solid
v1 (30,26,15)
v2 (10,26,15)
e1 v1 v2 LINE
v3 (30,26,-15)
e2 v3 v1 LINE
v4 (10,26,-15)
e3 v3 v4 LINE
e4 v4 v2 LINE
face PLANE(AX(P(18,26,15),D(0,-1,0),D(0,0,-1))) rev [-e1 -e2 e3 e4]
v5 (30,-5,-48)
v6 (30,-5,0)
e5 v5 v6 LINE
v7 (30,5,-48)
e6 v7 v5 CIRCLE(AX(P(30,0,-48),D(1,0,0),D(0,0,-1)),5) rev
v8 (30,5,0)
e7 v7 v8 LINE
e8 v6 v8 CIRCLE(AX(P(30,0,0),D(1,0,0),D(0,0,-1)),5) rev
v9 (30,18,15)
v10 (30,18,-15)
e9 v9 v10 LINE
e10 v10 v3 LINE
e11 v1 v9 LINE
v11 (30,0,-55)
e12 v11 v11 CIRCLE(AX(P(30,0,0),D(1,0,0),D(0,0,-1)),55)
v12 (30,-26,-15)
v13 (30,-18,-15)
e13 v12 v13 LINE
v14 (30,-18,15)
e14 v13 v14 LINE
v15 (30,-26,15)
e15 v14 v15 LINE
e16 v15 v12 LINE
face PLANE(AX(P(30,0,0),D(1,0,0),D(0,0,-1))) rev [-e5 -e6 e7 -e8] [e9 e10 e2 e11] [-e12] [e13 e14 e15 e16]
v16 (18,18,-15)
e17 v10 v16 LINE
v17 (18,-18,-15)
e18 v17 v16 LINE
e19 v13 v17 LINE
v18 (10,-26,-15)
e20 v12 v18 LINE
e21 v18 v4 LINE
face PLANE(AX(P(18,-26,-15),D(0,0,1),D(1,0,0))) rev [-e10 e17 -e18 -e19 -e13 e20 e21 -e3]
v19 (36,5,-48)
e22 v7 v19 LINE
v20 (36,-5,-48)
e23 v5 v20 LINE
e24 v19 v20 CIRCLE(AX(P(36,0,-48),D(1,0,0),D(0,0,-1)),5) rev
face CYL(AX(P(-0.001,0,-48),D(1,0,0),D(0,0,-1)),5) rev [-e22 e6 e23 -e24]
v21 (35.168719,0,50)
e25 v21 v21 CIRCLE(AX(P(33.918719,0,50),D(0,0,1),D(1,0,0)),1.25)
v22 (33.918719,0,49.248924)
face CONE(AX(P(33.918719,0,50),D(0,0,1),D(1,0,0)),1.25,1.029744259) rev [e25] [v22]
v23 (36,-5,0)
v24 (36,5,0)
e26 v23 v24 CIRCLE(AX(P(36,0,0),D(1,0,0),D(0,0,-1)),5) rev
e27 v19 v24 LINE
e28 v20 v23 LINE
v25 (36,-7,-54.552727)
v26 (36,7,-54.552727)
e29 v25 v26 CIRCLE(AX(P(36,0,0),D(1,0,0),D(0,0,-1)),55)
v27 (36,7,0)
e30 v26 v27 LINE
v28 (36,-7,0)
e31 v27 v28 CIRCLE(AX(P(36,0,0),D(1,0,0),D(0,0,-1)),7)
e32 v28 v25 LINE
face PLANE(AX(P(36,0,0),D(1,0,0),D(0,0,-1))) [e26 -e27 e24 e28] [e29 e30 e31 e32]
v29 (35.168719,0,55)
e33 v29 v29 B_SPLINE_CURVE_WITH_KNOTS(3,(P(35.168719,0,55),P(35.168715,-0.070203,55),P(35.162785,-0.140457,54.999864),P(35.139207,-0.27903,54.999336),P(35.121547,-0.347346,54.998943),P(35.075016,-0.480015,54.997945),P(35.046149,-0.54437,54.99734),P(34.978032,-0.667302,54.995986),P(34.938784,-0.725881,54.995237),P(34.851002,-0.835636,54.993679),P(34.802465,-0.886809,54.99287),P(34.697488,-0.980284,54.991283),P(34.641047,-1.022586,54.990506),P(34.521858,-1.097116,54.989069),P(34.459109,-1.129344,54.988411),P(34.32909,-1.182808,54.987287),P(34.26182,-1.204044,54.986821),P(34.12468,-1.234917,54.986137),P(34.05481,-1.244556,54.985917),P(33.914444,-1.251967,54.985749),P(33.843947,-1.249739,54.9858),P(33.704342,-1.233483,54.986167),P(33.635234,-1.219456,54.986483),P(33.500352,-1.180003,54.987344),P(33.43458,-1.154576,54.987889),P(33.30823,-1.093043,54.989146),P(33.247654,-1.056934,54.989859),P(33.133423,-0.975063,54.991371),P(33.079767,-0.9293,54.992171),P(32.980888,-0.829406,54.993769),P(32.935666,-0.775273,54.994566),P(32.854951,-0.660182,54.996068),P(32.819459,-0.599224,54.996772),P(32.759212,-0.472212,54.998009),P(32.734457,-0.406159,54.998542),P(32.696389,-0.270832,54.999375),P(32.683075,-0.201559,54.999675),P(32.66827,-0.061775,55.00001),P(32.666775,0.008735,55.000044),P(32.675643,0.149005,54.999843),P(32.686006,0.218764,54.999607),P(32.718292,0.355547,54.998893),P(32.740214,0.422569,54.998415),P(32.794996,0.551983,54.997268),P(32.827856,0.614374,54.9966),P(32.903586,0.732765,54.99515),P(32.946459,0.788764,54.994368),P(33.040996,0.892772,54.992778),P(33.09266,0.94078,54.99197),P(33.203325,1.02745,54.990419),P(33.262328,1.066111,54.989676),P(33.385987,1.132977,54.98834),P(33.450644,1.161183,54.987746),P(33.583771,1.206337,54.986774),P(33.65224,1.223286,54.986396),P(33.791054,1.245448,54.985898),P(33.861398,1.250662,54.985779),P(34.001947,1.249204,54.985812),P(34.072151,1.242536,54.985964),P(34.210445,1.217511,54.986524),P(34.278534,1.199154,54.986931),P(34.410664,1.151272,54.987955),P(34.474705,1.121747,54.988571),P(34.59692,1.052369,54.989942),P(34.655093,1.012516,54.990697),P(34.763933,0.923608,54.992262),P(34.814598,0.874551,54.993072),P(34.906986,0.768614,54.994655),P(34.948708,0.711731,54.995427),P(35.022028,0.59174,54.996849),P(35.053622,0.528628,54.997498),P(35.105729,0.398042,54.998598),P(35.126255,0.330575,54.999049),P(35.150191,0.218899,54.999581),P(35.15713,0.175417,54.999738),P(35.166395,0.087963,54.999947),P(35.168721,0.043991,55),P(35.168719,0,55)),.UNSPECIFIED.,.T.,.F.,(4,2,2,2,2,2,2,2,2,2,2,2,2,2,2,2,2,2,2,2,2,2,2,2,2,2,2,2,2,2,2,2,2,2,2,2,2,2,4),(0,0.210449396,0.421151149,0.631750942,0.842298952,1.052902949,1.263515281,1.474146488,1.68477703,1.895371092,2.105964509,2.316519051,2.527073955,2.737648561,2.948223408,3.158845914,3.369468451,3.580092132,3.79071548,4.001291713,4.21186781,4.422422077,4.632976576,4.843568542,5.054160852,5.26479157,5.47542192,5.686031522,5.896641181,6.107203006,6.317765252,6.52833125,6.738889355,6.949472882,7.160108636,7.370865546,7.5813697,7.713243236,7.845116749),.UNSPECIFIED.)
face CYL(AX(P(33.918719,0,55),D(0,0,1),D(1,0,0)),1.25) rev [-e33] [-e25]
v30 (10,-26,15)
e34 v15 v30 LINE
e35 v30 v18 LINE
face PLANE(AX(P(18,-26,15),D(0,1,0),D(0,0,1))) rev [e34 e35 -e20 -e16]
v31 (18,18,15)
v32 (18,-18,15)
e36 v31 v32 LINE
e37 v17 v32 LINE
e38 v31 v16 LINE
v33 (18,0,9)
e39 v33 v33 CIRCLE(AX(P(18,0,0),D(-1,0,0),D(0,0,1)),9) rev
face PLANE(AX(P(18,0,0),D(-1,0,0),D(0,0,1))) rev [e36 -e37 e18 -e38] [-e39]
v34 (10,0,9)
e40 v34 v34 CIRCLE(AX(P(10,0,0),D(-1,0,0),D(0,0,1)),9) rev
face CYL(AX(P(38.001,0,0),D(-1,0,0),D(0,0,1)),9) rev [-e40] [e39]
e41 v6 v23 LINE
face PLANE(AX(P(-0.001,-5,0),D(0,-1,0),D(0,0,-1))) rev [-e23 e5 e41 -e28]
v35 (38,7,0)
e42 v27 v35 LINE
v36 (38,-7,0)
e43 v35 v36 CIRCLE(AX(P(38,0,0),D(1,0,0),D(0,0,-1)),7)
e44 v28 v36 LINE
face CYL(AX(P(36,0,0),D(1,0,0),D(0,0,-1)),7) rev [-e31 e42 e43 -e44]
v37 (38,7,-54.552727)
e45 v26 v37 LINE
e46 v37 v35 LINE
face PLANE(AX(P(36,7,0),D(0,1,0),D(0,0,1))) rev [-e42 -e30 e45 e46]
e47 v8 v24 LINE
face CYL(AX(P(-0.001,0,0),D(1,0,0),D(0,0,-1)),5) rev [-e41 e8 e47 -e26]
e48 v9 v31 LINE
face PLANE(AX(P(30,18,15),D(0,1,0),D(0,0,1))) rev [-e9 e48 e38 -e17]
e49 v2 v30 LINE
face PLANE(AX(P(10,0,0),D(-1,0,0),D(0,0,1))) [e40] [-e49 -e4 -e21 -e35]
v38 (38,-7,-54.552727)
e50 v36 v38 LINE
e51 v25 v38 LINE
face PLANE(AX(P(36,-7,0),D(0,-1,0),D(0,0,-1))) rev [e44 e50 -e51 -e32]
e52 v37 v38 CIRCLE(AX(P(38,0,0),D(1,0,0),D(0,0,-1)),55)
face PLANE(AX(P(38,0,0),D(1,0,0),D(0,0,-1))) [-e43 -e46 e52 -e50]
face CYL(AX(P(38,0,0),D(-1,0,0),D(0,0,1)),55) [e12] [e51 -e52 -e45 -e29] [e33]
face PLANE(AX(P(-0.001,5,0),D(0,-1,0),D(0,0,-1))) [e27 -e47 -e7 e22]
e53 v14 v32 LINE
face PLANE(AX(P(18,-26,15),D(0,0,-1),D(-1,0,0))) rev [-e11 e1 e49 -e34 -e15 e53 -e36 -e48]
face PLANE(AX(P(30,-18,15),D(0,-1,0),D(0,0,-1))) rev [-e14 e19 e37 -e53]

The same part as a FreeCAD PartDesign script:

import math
import FreeCAD as App
import Part
import Sketcher
from FreeCAD import Vector
Q = App.Units.Quantity


def add_polygon(sketch, points):
    """Adds a closed chain of lines whose ends are joined by coincident constraints."""
    first, n = sketch.GeometryCount, len(points)
    for a, b in zip(points, points[1:] + points[:1]):
        sketch.addGeometry(Part.LineSegment(App.Vector(*a, 0), App.Vector(*b, 0)), False)
    for i in range(n):
        sketch.addConstraint(Sketcher.Constraint("Coincident", first + i, 2, first + (i + 1) % n, 1))

doc = App.newDocument("Part")
body = doc.addObject("PartDesign::Body", "Body")

sketch1 = body.newObject("Sketcher::SketchObject", "Sketch")
sketch1.AttachmentSupport = (doc.getObject("YZ_Plane"), [""])
sketch1.MapMode = "FlatFace"
sketch1.addGeometry(Part.Circle(Vector(0, 0, 0), Vector(0, 0, 1), 8), False)
sketch1.addConstraint([
    Sketcher.Constraint("Coincident", 0, 3, -1, 1),
    Sketcher.Constraint("Diameter", 0, Q("15 mm")),
])
pad1 = body.newObject("PartDesign::Pad", "Pad")
pad1.Profile = sketch1
pad1.Length = 10

sketch2 = body.newObject("Sketcher::SketchObject", "Sketch001")
sketch2.AttachmentSupport = (doc.getObject("YZ_Plane"), [""])
sketch2.MapMode = "FlatFace"
sketch2.AttachmentOffset = App.Placement(Vector(0, 0, 10), App.Rotation())
add_polygon(sketch2, [(26, 15), (-26, 15), (-26, -15), (26, -15)])
sketch2.addConstraint([
    Sketcher.Constraint("Horizontal", 0),
    Sketcher.Constraint("Vertical", 1),
    Sketcher.Constraint("Horizontal", 2),
    Sketcher.Constraint("Vertical", 3),
    Sketcher.Constraint("Symmetric", 0, 2, 2, 2, -1, 1),
    Sketcher.Constraint("DistanceX", 0, 2, 0, 1, Q("52 mm")),
    Sketcher.Constraint("DistanceY", 1, 2, 1, 1, Q("30 mm")),
])
pad2 = body.newObject("PartDesign::Pad", "Pad001")
pad2.Profile = sketch2
pad2.Length = 8

sketch3 = body.newObject("Sketcher::SketchObject", "Sketch002")
sketch3.AttachmentSupport = (doc.getObject("YZ_Plane"), [""])
sketch3.MapMode = "FlatFace"
sketch3.AttachmentOffset = App.Placement(Vector(0, 0, 18), App.Rotation())
add_polygon(sketch3, [(26, 15), (18, 15), (18, -15), (26, -15)])
add_polygon(sketch3, [(-18, 15), (-26, 15), (-26, -15), (-18, -15)])
sketch3.addConstraint([
    Sketcher.Constraint("Horizontal", 0),
    Sketcher.Constraint("Vertical", 1),
    Sketcher.Constraint("Horizontal", 2),
    Sketcher.Constraint("Vertical", 3),
    Sketcher.Constraint("Horizontal", 4),
    Sketcher.Constraint("Vertical", 5),
    Sketcher.Constraint("Horizontal", 6),
    Sketcher.Constraint("Vertical", 7),
    Sketcher.Constraint("Symmetric", 2, 2, 4, 2, -1, 1),
    Sketcher.Constraint("Symmetric", 0, 2, 6, 2, -1, 1),
    Sketcher.Constraint("Horizontal", 3, 2, 4, 2),
    Sketcher.Constraint("DistanceX", 0, 2, 0, 1, Q("8 mm")),
    Sketcher.Constraint("DistanceY", 1, 2, 1, 1, Q("30 mm")),
    Sketcher.Constraint("DistanceX", -1, 1, 0, 2, Q("18 mm")),
])
pad3 = body.newObject("PartDesign::Pad", "Pad002")
pad3.Profile = sketch3
pad3.Length = 12

sketch4 = body.newObject("Sketcher::SketchObject", "Sketch003")
sketch4.AttachmentSupport = (doc.getObject("YZ_Plane"), [""])
sketch4.MapMode = "FlatFace"
sketch4.AttachmentOffset = App.Placement(Vector(0, 0, 30), App.Rotation())
sketch4.addGeometry(Part.Circle(Vector(0, 0, 0), Vector(0, 0, 1), 55), False)
sketch4.addConstraint([
    Sketcher.Constraint("Coincident", 0, 3, -1, 1),
    Sketcher.Constraint("Diameter", 0, Q("110 mm")),
])
pad4 = body.newObject("PartDesign::Pad", "Pad003")
pad4.Profile = sketch4
pad4.Length = 8

sketch5 = body.newObject("Sketcher::SketchObject", "Sketch004")
sketch5.AttachmentSupport = (doc.getObject("YZ_Plane"), [""])
sketch5.MapMode = "FlatFace"
sketch5.AttachmentOffset = App.Placement(Vector(0, 0, 38), App.Rotation())
sketch5.addGeometry([
    Part.LineSegment(Vector(5, -48, 0), Vector(5, 0, 0)),
    Part.ArcOfCircle(Part.Circle(Vector(0, 0, 0), Vector(0, 0, 1), 5), math.radians(0), math.radians(180)),
    Part.LineSegment(Vector(-5, 0, 0), Vector(-5, -48, 0)),
    Part.ArcOfCircle(Part.Circle(Vector(0, -48, 0), Vector(0, 0, 1), 5), math.radians(180), math.radians(360)),
], False)
sketch5.addConstraint([
    Sketcher.Constraint("Tangent", 0, 2, 1, 1),
    Sketcher.Constraint("Tangent", 1, 2, 2, 1),
    Sketcher.Constraint("Tangent", 2, 2, 3, 1),
    Sketcher.Constraint("Tangent", 3, 2, 0, 1),
    Sketcher.Constraint("Vertical", 0),
    Sketcher.Constraint("Vertical", 2),
    Sketcher.Constraint("Coincident", 1, 3, -1, 1),
    Sketcher.Constraint("Radius", 1, Q("5 mm")),
    Sketcher.Constraint("DistanceY", 0, 1, 0, 2, Q("48 mm")),
])
pocket1 = body.newObject("PartDesign::Pocket", "Pocket")
pocket1.Profile = sketch5
pocket1.Type = "UpToFirst"

sketch6 = body.newObject("Sketcher::SketchObject", "Sketch005")
sketch6.AttachmentSupport = (doc.getObject("YZ_Plane"), [""])
sketch6.MapMode = "FlatFace"
sketch6.AttachmentOffset = App.Placement(Vector(0, 0, 38), App.Rotation())
sketch6.addGeometry([
    Part.LineSegment(Vector(7, -55, 0), Vector(7, 0, 0)),
    Part.ArcOfCircle(Part.Circle(Vector(0, 0, 0), Vector(0, 0, 1), 7), math.radians(0), math.radians(180)),
    Part.LineSegment(Vector(-7, 0, 0), Vector(-7, -55, 0)),
    Part.ArcOfCircle(Part.Circle(Vector(0, 0, 0), Vector(0, 0, 1), 55), math.radians(-97.31), math.radians(-82.69)),
], False)
sketch6.addConstraint([
    Sketcher.Constraint("Tangent", 0, 2, 1, 1),
    Sketcher.Constraint("Tangent", 1, 2, 2, 1),
    Sketcher.Constraint("Coincident", 2, 2, 3, 1),
    Sketcher.Constraint("Coincident", 3, 2, 0, 1),
    Sketcher.Constraint("Vertical", 0),
    Sketcher.Constraint("Vertical", 2),
    Sketcher.Constraint("Coincident", 1, 3, -1, 1),
    Sketcher.Constraint("Coincident", 3, 3, -1, 1),
    Sketcher.Constraint("Radius", 1, Q("7 mm")),
    Sketcher.Constraint("Radius", 3, Q("55 mm")),
])
pocket2 = body.newObject("PartDesign::Pocket", "Pocket001")
pocket2.Profile = sketch6
pocket2.Length = 2

sketch7 = body.newObject("Sketcher::SketchObject", "Sketch006")
sketch7.AttachmentSupport = (doc.getObject("YZ_Plane"), [""])
sketch7.MapMode = "FlatFace"
sketch7.addGeometry(Part.Circle(Vector(0, 0, 0), Vector(0, 0, 1), 9), False)
sketch7.addConstraint([
    Sketcher.Constraint("Coincident", 0, 3, -1, 1),
    Sketcher.Constraint("Diameter", 0, Q("18 mm")),
])
pocket3 = body.newObject("PartDesign::Pocket", "Pocket002")
pocket3.Profile = sketch7
pocket3.Type = "UpToFirst"
pocket3.Reversed = True

sketch8 = body.newObject("Sketcher::SketchObject", "Sketch007")
sketch8.AttachmentSupport = (doc.getObject("XY_Plane"), [""])
sketch8.MapMode = "FlatFace"
sketch8.AttachmentOffset = App.Placement(Vector(0, 0, 55), App.Rotation())
sketch8.addGeometry(Part.Circle(Vector(33.9, 0, 0), Vector(0, 0, 1), 1.2), False)
sketch8.addConstraint([
    Sketcher.Constraint("PointOnObject", 0, 3, -1),
    Sketcher.Constraint("Diameter", 0, Q("2.5 mm")),
    Sketcher.Constraint("DistanceX", -1, 1, 0, 3, Q("33.918719 mm")),
])
doc.recompute()
hole = body.newObject("PartDesign::Hole", "Hole")
hole.Profile = sketch8
hole.ThreadType = "None"
hole.Diameter = 2.5
hole.DepthType = "Dimension"
hole.Depth = 5
hole.DrillPoint = "Angled"
hole.DrillPointAngle = 118

doc.recompute()
